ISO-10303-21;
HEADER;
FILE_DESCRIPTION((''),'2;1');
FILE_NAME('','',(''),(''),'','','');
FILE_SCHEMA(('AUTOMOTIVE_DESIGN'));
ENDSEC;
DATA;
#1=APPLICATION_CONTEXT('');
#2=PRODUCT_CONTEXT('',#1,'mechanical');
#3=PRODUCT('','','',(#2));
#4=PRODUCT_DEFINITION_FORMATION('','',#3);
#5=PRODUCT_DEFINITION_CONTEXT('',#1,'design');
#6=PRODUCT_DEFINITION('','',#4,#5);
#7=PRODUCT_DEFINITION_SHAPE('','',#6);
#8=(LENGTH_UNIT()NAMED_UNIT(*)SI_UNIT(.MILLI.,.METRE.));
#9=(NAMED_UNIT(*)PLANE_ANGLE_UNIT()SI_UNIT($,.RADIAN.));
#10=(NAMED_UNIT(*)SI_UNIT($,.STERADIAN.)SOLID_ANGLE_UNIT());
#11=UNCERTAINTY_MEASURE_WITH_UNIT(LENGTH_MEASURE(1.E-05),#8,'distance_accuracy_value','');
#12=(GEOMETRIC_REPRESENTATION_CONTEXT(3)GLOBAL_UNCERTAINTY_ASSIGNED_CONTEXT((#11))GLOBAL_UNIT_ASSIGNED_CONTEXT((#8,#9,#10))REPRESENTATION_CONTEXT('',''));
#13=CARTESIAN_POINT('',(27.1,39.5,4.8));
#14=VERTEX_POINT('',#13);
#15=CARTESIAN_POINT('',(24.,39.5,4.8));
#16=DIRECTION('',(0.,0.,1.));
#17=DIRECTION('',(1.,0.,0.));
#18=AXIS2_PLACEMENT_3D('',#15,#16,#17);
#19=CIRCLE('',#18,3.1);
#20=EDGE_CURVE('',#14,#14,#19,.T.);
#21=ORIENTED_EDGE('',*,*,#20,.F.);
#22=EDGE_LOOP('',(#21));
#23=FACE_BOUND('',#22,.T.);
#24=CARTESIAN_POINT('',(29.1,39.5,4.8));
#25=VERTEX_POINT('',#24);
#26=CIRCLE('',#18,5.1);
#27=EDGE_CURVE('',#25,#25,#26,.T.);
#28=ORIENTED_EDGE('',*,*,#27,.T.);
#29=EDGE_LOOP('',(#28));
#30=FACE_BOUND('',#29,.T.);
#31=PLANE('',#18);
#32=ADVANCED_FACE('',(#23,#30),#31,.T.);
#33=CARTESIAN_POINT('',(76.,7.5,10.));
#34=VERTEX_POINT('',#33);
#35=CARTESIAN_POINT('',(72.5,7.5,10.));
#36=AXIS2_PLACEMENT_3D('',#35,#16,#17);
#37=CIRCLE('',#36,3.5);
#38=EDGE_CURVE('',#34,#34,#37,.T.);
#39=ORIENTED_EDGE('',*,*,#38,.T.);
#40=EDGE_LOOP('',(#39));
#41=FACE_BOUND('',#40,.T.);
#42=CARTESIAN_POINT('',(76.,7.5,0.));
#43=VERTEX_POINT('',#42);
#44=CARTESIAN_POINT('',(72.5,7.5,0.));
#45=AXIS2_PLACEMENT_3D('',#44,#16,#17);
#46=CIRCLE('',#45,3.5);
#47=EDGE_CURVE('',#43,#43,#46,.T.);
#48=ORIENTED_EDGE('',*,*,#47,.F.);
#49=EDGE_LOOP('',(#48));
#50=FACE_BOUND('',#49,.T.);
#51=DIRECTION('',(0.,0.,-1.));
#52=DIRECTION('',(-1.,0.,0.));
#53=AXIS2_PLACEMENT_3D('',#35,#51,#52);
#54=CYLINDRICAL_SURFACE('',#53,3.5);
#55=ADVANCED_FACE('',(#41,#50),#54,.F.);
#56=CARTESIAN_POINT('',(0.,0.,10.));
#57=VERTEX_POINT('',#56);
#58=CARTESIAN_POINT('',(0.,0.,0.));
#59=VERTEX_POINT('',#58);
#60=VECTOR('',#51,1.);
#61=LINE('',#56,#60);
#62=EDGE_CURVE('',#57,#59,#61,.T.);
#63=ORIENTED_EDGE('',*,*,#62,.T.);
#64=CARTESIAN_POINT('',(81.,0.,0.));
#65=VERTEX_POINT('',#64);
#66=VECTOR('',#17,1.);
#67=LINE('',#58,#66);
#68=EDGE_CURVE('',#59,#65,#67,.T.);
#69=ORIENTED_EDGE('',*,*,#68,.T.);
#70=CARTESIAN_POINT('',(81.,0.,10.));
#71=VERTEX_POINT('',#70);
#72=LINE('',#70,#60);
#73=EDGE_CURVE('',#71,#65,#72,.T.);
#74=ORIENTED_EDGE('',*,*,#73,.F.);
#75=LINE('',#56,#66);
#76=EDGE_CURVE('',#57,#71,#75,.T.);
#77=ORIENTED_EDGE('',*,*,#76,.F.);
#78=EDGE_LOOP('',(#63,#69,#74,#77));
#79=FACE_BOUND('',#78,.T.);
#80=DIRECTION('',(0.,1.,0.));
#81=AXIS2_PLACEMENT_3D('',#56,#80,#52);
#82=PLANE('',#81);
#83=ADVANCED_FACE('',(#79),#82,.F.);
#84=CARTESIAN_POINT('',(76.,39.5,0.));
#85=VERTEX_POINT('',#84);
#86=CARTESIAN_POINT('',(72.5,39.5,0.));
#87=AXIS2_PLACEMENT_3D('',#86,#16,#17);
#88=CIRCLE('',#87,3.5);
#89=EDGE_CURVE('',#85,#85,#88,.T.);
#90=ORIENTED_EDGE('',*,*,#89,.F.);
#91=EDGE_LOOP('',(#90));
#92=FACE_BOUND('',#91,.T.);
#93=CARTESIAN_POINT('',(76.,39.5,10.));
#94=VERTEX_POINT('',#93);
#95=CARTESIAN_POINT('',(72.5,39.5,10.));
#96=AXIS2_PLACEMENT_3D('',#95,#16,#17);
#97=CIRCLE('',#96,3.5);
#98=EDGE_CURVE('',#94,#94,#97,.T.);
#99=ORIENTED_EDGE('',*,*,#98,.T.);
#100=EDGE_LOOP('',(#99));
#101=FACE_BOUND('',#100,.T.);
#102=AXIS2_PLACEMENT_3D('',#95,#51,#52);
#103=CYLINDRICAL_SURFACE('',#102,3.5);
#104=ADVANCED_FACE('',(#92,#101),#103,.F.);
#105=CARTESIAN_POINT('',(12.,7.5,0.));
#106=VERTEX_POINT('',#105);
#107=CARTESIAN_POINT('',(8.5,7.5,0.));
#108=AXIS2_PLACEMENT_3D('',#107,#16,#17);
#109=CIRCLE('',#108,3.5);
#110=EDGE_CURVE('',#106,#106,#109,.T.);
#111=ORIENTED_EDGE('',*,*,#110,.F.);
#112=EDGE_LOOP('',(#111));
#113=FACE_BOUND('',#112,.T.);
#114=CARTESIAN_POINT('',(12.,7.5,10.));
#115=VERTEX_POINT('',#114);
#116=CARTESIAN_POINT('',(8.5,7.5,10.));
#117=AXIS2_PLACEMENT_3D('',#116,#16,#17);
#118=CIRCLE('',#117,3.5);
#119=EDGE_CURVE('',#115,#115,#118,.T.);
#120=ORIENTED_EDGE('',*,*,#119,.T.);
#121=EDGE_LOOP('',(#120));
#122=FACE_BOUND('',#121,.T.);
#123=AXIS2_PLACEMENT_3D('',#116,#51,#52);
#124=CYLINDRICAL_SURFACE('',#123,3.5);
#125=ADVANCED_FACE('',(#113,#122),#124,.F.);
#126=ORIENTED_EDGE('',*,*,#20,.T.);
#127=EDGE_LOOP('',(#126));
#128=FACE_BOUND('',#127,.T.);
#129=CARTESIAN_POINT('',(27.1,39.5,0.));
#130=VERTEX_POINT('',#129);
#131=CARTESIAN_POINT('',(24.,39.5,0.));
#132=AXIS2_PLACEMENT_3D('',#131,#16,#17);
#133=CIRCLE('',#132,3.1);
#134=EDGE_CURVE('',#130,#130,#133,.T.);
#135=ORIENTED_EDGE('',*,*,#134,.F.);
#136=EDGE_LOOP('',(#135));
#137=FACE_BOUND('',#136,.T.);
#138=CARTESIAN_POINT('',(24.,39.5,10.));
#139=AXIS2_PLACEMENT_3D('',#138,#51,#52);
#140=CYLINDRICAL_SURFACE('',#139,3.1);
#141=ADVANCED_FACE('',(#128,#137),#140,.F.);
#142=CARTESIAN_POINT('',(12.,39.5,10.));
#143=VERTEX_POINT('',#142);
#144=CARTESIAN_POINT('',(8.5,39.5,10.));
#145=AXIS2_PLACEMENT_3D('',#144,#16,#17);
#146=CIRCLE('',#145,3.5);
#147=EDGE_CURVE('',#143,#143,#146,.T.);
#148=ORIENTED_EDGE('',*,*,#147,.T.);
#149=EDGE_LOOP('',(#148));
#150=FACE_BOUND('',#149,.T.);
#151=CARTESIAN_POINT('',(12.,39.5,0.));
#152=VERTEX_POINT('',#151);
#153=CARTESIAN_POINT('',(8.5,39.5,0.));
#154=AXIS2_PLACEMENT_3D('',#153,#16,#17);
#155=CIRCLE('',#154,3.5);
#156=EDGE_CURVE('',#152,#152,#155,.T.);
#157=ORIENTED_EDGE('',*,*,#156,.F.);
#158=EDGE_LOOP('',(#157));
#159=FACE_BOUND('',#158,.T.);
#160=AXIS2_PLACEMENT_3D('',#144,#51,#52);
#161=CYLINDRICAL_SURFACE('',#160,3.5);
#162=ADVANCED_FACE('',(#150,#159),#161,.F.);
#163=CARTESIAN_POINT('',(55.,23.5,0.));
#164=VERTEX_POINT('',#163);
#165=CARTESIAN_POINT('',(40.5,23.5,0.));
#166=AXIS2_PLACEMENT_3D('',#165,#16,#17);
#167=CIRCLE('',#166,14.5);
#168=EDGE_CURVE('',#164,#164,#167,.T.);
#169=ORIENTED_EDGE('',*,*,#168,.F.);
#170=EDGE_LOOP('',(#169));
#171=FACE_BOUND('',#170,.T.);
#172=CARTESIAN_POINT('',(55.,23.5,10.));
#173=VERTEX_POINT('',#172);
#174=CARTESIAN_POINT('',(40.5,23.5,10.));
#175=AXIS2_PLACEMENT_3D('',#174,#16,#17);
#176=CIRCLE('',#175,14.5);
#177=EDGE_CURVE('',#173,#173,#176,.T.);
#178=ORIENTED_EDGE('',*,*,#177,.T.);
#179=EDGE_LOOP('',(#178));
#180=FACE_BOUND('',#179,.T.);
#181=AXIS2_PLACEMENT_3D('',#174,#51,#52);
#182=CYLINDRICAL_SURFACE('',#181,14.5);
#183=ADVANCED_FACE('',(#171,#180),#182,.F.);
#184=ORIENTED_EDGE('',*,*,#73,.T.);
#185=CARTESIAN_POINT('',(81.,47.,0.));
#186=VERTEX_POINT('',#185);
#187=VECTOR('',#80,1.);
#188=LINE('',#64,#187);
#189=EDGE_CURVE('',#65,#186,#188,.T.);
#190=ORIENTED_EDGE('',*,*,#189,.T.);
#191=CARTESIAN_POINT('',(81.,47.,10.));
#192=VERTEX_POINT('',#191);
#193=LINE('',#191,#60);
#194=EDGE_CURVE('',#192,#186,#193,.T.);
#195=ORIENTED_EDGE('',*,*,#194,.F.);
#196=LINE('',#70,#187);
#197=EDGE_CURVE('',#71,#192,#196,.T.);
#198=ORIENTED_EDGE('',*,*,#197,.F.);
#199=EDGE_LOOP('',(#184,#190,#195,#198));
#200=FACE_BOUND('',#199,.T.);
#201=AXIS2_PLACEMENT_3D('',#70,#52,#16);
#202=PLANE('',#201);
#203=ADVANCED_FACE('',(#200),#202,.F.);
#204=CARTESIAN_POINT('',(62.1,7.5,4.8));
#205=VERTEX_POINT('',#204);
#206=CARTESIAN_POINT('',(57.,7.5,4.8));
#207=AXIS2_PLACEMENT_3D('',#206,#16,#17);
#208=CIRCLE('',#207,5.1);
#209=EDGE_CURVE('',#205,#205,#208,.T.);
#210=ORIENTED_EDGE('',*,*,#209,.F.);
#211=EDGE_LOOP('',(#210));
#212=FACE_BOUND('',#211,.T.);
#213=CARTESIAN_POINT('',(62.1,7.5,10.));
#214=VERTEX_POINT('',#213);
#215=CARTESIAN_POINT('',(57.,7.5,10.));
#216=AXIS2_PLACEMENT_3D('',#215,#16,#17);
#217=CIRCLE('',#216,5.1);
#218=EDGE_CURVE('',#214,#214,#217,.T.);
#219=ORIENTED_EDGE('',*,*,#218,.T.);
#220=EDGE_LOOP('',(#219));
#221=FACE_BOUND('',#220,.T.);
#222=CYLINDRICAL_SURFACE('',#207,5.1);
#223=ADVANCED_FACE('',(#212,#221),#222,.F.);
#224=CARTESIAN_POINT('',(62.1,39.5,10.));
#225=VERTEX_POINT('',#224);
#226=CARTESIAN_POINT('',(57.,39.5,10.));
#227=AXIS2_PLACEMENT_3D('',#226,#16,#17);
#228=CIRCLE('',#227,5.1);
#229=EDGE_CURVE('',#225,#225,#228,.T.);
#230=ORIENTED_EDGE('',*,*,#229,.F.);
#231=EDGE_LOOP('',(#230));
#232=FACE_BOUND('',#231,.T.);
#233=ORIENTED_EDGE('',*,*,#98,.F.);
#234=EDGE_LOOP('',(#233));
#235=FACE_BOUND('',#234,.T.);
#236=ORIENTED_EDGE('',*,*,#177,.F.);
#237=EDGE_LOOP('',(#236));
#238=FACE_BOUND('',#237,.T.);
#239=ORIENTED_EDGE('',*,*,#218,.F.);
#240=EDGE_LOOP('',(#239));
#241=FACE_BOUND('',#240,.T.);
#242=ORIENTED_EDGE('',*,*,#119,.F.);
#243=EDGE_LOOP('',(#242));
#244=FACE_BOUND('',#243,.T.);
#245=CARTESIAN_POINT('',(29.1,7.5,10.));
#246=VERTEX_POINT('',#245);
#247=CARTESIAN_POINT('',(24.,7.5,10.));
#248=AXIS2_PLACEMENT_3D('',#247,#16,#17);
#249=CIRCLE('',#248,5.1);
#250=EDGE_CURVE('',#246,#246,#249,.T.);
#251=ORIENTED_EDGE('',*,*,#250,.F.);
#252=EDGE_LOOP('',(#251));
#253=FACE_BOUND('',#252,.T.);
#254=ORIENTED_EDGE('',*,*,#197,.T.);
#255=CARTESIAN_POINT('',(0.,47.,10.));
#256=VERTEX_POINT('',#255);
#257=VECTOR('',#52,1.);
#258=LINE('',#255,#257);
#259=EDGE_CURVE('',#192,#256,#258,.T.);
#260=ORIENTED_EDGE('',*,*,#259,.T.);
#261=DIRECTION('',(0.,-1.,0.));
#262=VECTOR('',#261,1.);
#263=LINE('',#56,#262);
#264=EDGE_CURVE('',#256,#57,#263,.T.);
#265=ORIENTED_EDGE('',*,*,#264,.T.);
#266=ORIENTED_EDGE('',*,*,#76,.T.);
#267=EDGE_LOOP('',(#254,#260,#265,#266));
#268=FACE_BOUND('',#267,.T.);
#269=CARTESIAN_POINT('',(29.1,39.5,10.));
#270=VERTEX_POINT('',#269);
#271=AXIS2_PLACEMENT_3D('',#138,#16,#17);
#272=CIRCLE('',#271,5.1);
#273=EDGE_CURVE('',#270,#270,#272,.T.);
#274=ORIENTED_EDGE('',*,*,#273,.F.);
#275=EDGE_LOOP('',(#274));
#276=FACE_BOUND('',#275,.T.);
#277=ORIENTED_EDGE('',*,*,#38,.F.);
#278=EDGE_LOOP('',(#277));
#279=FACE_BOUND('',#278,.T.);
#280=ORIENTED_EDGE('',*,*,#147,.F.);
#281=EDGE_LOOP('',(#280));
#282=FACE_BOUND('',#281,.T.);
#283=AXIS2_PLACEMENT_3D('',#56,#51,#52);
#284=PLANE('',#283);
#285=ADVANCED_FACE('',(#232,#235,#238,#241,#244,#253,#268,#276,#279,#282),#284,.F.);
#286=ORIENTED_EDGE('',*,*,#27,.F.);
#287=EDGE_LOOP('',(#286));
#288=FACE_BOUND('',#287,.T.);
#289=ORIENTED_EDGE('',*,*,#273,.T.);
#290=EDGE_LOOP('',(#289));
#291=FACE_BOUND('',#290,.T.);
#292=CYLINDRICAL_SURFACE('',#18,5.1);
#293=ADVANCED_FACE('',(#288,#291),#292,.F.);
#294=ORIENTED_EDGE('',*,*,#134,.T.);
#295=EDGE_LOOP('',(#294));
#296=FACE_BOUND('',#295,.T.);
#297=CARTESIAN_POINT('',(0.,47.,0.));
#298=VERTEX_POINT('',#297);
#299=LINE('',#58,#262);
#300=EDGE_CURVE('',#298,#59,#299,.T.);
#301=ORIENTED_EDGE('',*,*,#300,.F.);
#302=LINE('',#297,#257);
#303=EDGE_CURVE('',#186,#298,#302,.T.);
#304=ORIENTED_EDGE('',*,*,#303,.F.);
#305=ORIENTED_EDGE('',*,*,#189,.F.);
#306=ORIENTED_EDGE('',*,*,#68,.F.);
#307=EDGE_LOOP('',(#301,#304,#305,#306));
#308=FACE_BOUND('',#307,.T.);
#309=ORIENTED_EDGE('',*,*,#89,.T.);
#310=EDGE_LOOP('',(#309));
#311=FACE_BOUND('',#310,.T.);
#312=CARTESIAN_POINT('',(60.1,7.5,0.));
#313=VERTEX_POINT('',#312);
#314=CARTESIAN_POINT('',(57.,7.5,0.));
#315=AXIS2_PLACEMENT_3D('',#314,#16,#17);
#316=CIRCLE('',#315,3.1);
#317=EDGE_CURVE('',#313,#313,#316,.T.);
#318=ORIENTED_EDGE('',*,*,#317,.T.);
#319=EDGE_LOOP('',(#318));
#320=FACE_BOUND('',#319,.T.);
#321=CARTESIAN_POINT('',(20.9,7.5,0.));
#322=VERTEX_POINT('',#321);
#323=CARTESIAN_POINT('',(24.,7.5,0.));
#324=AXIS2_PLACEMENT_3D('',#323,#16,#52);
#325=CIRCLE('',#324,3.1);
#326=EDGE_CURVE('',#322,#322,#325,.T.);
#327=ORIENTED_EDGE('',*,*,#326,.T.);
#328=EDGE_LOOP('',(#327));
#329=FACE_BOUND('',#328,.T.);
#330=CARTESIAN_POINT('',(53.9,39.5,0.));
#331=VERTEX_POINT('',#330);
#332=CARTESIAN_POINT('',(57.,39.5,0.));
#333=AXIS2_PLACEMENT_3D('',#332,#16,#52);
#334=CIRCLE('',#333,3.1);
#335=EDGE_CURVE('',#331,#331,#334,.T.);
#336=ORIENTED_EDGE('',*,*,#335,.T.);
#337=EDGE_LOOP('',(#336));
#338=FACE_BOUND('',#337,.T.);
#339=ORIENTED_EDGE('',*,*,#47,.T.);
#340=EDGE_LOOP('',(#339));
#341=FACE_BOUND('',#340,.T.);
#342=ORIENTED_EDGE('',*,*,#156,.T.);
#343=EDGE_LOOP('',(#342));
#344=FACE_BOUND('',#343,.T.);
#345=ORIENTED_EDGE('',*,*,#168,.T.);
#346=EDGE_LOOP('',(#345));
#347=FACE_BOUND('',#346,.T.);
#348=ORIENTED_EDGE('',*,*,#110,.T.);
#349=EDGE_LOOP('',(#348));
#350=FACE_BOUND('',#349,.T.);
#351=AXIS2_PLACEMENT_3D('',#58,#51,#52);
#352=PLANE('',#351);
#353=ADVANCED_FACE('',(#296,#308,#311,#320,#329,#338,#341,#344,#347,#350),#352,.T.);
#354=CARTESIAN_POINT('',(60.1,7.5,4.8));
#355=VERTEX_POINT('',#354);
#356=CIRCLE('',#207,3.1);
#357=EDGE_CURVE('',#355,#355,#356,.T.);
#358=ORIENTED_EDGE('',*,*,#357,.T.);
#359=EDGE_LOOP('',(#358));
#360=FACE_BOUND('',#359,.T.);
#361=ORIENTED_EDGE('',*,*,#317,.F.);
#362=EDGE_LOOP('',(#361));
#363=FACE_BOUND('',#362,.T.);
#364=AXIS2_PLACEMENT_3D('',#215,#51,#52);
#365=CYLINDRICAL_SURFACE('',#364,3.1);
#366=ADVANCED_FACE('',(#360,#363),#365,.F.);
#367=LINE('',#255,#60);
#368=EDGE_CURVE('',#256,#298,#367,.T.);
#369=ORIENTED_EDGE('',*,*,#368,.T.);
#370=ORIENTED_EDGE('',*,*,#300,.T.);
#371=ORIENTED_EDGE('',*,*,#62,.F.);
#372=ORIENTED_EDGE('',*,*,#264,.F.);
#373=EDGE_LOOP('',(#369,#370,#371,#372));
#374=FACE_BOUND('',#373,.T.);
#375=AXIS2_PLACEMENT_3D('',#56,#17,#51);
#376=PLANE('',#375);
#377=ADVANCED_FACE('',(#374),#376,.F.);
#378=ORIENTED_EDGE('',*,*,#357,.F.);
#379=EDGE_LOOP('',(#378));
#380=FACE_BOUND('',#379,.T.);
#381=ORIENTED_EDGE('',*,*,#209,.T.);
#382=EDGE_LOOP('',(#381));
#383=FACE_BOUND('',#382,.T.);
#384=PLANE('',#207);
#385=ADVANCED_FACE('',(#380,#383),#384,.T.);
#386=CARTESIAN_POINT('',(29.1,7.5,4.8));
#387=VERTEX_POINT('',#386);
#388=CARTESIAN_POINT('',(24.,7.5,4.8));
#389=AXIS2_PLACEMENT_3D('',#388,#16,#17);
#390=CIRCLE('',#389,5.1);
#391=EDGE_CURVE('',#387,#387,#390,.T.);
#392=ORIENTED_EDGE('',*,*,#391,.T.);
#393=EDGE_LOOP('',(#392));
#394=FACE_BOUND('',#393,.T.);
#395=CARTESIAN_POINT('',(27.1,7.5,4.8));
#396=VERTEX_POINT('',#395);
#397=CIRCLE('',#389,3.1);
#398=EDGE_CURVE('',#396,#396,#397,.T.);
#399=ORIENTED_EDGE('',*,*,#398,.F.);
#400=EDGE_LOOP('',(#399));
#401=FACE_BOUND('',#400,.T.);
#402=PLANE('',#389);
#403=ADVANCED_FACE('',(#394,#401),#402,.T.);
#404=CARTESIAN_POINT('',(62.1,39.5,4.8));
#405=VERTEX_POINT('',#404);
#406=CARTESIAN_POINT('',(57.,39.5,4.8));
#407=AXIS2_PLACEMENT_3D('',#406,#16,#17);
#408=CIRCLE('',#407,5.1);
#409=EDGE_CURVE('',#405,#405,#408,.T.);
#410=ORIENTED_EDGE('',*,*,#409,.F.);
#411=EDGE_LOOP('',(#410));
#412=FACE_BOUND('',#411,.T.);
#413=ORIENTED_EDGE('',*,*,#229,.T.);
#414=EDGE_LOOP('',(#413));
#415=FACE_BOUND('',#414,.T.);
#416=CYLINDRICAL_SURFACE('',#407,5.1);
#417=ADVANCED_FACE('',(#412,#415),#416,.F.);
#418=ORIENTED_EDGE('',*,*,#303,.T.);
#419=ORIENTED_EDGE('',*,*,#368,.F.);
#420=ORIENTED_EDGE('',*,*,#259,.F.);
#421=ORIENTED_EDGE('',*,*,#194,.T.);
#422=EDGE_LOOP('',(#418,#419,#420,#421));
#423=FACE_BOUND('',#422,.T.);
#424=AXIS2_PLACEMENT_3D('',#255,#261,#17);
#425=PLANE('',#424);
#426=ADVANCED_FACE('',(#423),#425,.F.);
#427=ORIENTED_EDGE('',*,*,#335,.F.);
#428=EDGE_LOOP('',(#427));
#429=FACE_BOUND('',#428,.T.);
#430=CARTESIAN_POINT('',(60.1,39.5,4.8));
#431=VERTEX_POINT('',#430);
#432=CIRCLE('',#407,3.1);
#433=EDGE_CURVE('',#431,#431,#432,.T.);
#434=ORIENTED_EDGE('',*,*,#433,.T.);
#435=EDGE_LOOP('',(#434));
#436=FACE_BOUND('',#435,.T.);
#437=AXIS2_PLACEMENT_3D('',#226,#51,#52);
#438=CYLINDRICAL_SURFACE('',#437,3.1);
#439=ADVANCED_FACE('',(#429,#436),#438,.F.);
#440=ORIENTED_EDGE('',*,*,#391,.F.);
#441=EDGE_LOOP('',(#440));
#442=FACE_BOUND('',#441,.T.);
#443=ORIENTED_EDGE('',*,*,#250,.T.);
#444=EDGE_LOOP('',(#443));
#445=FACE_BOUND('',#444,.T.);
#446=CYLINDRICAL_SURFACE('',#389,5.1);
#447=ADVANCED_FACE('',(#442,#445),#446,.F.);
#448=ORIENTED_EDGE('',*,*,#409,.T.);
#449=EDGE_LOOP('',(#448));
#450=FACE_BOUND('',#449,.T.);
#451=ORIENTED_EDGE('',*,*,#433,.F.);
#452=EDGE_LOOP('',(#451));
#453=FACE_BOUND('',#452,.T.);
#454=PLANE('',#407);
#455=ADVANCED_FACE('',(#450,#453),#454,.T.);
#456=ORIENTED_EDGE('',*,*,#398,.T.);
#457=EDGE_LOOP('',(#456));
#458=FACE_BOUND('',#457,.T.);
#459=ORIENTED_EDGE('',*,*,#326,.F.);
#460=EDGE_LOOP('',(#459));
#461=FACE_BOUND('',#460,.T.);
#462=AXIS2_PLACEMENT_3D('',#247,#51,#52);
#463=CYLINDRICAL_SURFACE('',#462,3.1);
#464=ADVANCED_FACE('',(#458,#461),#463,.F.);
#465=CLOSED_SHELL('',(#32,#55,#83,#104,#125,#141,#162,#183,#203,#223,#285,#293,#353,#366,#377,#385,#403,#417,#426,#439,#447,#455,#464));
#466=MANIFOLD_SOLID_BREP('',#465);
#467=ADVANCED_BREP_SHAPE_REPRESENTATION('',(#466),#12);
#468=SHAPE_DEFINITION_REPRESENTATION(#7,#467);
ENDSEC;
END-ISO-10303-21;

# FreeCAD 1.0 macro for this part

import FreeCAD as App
import Part
import Sketcher
from FreeCAD import Vector


def add_polygon(sketch, points):
    """Adds a closed chain of lines whose ends are joined by coincident constraints."""
    first, n = sketch.GeometryCount, len(points)
    for a, b in zip(points, points[1:] + points[:1]):
        sketch.addGeometry(Part.LineSegment(App.Vector(*a, 0), App.Vector(*b, 0)), False)
    for i in range(n):
        sketch.addConstraint(Sketcher.Constraint("Coincident", first + i, 2, first + (i + 1) % n, 1))

doc = App.newDocument("Part")
body = doc.addObject("PartDesign::Body", "Body")

sketch1 = body.newObject("Sketcher::SketchObject", "Sketch")
sketch1.AttachmentSupport = (doc.getObject("XY_Plane"), [""])
sketch1.MapMode = "FlatFace"
add_polygon(sketch1, [(0, 47), (0, 0), (81, 0), (81, 47)])
sketch1.addGeometry(Part.Circle(Vector(8.5, 7.5, 0), Vector(0, 0, 1), 3.5), False)
sketch1.addGeometry(Part.Circle(Vector(24, 7.5, 0), Vector(0, 0, 1), 3.1), False)
sketch1.addGeometry(Part.Circle(Vector(57, 7.5, 0), Vector(0, 0, 1), 3.1), False)
sketch1.addGeometry(Part.Circle(Vector(72.5, 7.5, 0), Vector(0, 0, 1), 3.5), False)
sketch1.addGeometry(Part.Circle(Vector(8.5, 39.5, 0), Vector(0, 0, 1), 3.5), False)
sketch1.addGeometry(Part.Circle(Vector(24, 39.5, 0), Vector(0, 0, 1), 3.1), False)
sketch1.addGeometry(Part.Circle(Vector(40.5, 23.5, 0), Vector(0, 0, 1), 14.5), False)
sketch1.addGeometry(Part.Circle(Vector(57, 39.5, 0), Vector(0, 0, 1), 3.1), False)
sketch1.addGeometry(Part.Circle(Vector(72.5, 39.5, 0), Vector(0, 0, 1), 3.5), False)
sketch1.addConstraint([
    Sketcher.Constraint("Vertical", 0),
    Sketcher.Constraint("Horizontal", 1),
    Sketcher.Constraint("Vertical", 2),
    Sketcher.Constraint("Horizontal", 3),
    Sketcher.Constraint("Coincident", 0, 2, -1, 1),
    Sketcher.Constraint("Equal", 5, 6),
    Sketcher.Constraint("Equal", 4, 7),
    Sketcher.Constraint("Equal", 7, 8),
    Sketcher.Constraint("Equal", 6, 9),
    Sketcher.Constraint("Equal", 9, 11),
    Sketcher.Constraint("Equal", 8, 12),
    Sketcher.Constraint("Horizontal", 4, 3, 5, 3),
    Sketcher.Constraint("Horizontal", 5, 3, 6, 3),
    Sketcher.Constraint("Horizontal", 6, 3, 7, 3),
    Sketcher.Constraint("Horizontal", 8, 3, 9, 3),
    Sketcher.Constraint("Horizontal", 9, 3, 11, 3),
    Sketcher.Constraint("Horizontal", 11, 3, 12, 3),
    Sketcher.Constraint("Vertical", 4, 3, 8, 3),
    Sketcher.Constraint("Vertical", 5, 3, 9, 3),
    Sketcher.Constraint("Vertical", 6, 3, 11, 3),
    Sketcher.Constraint("Vertical", 7, 3, 12, 3),
    Sketcher.Constraint("Diameter", 4, 7.0),
    Sketcher.Constraint("Diameter", 10, 29.0),
    Sketcher.Constraint("Diameter", 5, 6.2),
    Sketcher.Constraint("DistanceX", 1, 1, 1, 2, 81.0),
    Sketcher.Constraint("DistanceY", 0, 2, 0, 1, 47.0),
    Sketcher.Constraint("DistanceX", -1, 1, 5, 3, 24.0),
    Sketcher.Constraint("DistanceX", -1, 1, 6, 3, 57.0),
    Sketcher.Constraint("DistanceX", 4, 3, 7, 3, 64.0),
    Sketcher.Constraint("DistanceY", 4, 3, 8, 3, 32.0),
    Sketcher.Constraint("DistanceY", 5, 3, 10, 3, 16.0),
    Sketcher.Constraint("DistanceX", 4, 3, 10, 3, 32.0),
    Sketcher.Constraint("DistanceX", -1, 1, 4, 3, 8.5),
    Sketcher.Constraint("DistanceY", -1, 1, 4, 3, 7.5),
])
pad1 = body.newObject("PartDesign::Pad", "Pad")
pad1.Profile = sketch1
pad1.Length = 10

sketch2 = body.newObject("Sketcher::SketchObject", "Sketch001")
sketch2.AttachmentSupport = (doc.getObject("XY_Plane"), [""])
sketch2.MapMode = "FlatFace"
sketch2.AttachmentOffset = App.Placement(Vector(0, 0, 10), App.Rotation())
sketch2.addGeometry([
    Part.Circle(Vector(24, 40, 0), Vector(0, 0, 1), 5),
    Part.Circle(Vector(24, 8, 0), Vector(0, 0, 1), 5),
    Part.Circle(Vector(57, 8, 0), Vector(0, 0, 1), 5),
    Part.Circle(Vector(57, 40, 0), Vector(0, 0, 1), 5),
], False)
sketch2.addConstraint([
    Sketcher.Constraint("Equal", 0, 1),
    Sketcher.Constraint("Equal", 1, 2),
    Sketcher.Constraint("Equal", 2, 3),
    Sketcher.Constraint("Horizontal", 1, 3, 2, 3),
    Sketcher.Constraint("Horizontal", 0, 3, 3, 3),
    Sketcher.Constraint("Vertical", 0, 3, 1, 3),
    Sketcher.Constraint("Vertical", 2, 3, 3, 3),
    Sketcher.Constraint("Diameter", 0, 10.2),
    Sketcher.Constraint("DistanceX", -1, 1, 0, 3, 24.0),
    Sketcher.Constraint("DistanceX", -1, 1, 2, 3, 57.0),
    Sketcher.Constraint("DistanceY", 1, 3, 0, 3, 32.0),
    Sketcher.Constraint("DistanceY", -1, 1, 0, 3, 39.5),
])
pocket1 = body.newObject("PartDesign::Pocket", "Pocket")
pocket1.Profile = sketch2
pocket1.Length = 5.2

doc.recompute()
